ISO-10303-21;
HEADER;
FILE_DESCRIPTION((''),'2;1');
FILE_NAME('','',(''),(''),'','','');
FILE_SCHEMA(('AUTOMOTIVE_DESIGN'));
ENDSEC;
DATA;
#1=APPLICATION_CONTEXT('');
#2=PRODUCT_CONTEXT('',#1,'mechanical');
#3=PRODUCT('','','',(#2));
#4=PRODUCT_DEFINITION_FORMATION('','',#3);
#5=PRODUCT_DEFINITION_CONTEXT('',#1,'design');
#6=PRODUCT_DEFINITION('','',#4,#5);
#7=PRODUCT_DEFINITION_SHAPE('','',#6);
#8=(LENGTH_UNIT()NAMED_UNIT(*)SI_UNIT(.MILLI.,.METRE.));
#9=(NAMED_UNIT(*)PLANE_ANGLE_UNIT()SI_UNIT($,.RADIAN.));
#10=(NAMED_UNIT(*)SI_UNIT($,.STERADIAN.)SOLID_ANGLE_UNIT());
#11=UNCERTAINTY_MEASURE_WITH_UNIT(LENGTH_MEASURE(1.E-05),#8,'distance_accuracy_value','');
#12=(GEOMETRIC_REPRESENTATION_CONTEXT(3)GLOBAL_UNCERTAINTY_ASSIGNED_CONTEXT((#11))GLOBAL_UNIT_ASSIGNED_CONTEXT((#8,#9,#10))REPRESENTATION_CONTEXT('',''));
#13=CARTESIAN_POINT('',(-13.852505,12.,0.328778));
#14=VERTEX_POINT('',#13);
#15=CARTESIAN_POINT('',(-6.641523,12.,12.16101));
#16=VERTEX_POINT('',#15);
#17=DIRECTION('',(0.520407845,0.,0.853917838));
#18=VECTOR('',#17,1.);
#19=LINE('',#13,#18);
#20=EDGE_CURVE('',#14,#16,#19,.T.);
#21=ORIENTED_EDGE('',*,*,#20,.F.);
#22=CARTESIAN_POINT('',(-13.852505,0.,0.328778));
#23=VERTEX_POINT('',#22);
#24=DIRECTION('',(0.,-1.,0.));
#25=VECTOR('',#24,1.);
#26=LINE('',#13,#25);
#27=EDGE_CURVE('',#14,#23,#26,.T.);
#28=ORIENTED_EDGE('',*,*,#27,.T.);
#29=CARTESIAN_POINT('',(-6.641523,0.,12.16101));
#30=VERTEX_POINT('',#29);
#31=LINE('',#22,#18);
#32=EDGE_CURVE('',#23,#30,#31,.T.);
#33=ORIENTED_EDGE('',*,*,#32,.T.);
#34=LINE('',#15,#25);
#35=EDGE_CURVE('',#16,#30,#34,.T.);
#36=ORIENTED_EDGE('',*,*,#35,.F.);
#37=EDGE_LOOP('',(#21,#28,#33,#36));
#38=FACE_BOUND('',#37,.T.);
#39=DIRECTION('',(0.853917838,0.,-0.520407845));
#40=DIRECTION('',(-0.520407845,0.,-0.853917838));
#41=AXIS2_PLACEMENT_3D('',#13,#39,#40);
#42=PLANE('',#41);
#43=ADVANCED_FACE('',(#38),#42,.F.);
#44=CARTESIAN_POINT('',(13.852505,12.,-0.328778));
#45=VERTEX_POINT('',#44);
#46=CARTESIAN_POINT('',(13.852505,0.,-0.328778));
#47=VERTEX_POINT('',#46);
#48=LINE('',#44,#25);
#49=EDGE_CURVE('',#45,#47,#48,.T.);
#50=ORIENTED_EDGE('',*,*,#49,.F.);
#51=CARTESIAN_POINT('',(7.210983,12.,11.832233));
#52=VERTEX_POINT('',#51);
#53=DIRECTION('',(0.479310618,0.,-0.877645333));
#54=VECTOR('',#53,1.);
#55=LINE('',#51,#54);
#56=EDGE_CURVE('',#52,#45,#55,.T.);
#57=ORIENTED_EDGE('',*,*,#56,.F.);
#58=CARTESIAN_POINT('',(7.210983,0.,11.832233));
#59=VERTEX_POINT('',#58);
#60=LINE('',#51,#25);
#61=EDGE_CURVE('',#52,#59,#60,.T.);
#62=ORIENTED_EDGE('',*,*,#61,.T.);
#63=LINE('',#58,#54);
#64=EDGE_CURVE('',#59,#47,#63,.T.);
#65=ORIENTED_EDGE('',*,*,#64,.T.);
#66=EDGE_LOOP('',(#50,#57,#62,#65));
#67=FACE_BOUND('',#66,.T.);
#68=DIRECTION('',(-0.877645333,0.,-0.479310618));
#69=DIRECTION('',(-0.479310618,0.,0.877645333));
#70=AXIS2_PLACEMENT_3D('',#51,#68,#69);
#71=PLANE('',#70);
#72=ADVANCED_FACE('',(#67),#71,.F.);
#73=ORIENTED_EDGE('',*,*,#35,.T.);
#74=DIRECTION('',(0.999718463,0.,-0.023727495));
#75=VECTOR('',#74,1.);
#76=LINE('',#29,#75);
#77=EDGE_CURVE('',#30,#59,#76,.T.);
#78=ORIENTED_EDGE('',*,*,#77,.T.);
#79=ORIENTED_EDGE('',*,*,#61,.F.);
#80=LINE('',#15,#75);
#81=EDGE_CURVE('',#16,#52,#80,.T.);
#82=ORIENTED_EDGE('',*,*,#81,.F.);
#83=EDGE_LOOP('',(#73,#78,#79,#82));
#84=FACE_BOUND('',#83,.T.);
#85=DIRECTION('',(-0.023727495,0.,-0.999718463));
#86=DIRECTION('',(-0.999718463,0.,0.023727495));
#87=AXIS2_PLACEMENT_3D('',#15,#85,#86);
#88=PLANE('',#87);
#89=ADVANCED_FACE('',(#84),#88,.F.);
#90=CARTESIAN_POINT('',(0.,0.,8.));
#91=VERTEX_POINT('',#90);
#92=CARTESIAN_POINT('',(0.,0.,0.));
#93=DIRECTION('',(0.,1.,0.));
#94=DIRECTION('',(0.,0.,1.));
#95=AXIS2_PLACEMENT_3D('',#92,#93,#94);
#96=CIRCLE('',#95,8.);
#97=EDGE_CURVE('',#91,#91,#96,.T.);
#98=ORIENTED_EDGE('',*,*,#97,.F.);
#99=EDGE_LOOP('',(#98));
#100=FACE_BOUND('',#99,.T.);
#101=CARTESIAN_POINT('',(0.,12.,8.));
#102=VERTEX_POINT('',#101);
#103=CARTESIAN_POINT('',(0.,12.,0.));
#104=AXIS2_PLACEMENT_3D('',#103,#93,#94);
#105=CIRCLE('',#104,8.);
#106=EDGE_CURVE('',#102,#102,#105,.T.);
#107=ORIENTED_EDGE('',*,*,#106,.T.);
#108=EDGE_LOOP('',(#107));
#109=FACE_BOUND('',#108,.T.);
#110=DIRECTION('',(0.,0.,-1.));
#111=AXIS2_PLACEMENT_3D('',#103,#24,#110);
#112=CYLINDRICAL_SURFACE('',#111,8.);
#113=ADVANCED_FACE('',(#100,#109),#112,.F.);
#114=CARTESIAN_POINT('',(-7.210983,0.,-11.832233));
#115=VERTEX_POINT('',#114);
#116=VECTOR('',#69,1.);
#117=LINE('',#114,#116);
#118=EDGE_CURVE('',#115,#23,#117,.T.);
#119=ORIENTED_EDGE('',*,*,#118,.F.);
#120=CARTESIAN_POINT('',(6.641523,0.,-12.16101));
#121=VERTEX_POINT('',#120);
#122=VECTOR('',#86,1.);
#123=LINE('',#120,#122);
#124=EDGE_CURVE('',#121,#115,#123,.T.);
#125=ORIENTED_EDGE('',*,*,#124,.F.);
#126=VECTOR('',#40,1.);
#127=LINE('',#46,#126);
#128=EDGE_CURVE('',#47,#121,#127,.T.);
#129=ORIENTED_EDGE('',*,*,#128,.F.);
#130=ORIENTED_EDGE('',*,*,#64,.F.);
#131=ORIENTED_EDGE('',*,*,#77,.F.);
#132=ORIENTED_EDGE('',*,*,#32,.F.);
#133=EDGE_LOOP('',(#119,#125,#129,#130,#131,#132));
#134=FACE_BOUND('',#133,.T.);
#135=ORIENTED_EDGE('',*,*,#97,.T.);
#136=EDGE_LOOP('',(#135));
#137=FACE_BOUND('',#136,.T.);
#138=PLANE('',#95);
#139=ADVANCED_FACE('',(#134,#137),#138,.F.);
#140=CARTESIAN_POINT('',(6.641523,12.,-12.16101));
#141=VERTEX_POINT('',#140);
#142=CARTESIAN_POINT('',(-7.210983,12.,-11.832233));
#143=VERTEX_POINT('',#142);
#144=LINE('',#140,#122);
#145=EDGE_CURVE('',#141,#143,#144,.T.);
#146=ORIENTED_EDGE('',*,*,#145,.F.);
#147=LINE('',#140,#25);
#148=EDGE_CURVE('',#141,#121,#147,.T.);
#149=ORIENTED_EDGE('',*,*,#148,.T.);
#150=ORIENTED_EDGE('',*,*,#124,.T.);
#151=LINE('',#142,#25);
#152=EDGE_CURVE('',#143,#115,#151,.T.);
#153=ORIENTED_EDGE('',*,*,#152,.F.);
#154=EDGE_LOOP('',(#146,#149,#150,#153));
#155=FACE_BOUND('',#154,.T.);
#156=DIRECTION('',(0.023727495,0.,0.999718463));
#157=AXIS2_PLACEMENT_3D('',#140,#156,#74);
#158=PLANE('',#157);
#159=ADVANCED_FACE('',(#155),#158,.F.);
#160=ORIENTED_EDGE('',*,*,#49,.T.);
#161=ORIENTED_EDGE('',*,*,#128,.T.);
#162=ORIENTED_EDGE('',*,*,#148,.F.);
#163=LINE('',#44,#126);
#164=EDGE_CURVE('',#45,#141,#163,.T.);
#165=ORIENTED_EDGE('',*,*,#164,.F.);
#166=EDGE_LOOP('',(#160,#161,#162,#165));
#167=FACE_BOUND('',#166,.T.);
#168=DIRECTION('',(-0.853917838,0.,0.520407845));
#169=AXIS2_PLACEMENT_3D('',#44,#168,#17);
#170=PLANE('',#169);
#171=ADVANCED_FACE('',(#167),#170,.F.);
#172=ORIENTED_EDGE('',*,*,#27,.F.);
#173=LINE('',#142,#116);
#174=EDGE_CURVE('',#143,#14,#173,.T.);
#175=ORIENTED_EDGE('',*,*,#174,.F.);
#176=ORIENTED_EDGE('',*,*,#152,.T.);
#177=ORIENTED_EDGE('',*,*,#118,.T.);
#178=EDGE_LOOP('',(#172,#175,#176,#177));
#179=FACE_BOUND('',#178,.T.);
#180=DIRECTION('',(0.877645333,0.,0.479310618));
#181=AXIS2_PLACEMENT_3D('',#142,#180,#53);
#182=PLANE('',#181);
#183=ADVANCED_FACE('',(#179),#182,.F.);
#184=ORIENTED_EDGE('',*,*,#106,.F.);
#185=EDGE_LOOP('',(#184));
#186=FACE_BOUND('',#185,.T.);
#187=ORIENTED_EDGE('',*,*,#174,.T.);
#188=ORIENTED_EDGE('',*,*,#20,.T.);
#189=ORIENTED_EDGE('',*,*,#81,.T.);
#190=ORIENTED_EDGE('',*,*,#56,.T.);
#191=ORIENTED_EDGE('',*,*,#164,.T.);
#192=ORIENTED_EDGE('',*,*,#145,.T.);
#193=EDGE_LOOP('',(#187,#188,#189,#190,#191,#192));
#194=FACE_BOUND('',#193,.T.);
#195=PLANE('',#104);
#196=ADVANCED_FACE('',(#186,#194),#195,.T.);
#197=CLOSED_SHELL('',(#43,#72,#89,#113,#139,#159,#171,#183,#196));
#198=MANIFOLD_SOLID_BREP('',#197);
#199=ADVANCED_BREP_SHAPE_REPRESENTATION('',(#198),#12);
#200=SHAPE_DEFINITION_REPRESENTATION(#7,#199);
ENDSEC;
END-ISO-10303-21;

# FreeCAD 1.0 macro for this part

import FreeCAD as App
import Part
import Sketcher

doc = App.newDocument("Part")
params = doc.addObject("Spreadsheet::Sheet", "Params")
for row, (alias, value) in enumerate([
    ("sketch1_diameter", "16 mm"),
    ("pad1_length", "12 mm"),
], start=1):
    params.set(f"A{row}", alias)
    params.set(f"B{row}", "=" + value)
    params.setAlias(f"B{row}", alias)

body = doc.addObject("PartDesign::Body", "Body")

# Sketch on XZ plane
sketch1 = body.newObject("Sketcher::SketchObject", "Sketch")
sketch1.AttachmentSupport = (doc.getObject("XZ_Plane"), [""])
sketch1.MapMode = "FlatFace"
sketch1.addGeometry([
    Part.LineSegment(App.Vector(-13.852505, 0.328778, 0), App.Vector(-6.641523, 12.16101, 0)),  # 0
    Part.LineSegment(App.Vector(-6.641523, 12.16101, 0), App.Vector(7.210983, 11.832233, 0)),  # 1
    Part.LineSegment(App.Vector(7.210983, 11.832233, 0), App.Vector(13.852505, -0.328778, 0)),  # 2
    Part.LineSegment(App.Vector(13.852505, -0.328778, 0), App.Vector(6.641523, -12.16101, 0)),  # 3
    Part.LineSegment(App.Vector(6.641523, -12.16101, 0), App.Vector(-7.210983, -11.832233, 0)),  # 4
    Part.LineSegment(App.Vector(-7.210983, -11.832233, 0), App.Vector(-13.852505, 0.328778, 0)),  # 5
    Part.Circle(App.Vector(0, 0, 0), App.Vector(0, 0, 1), 8),  # 6
], False)
sketch1.addConstraint([
    Sketcher.Constraint("Coincident", 0, 2, 1, 1),
    Sketcher.Constraint("Coincident", 1, 2, 2, 1),
    Sketcher.Constraint("Coincident", 2, 2, 3, 1),
    Sketcher.Constraint("Coincident", 3, 2, 4, 1),
    Sketcher.Constraint("Coincident", 4, 2, 5, 1),
    Sketcher.Constraint("Coincident", 5, 2, 0, 1),
    Sketcher.Constraint("Coincident", 6, 3, -1, 1),
    Sketcher.Constraint("Symmetric", 0, 2, 3, 2, -1, 1),
    Sketcher.Constraint("Symmetric", 1, 2, 4, 2, -1, 1),
    Sketcher.Constraint("Symmetric", 2, 2, 5, 2, -1, 1),
    Sketcher.Constraint("Equal", 0, 1),
    Sketcher.Constraint("Equal", 1, 2),
    Sketcher.Constraint("Diameter", 6, 16.0),
    Sketcher.Constraint("DistanceY", -1, 1, 0, 2, 12.16101),
    Sketcher.Constraint("DistanceY", 2, 2, 1, 2, 12.16101),
    Sketcher.Constraint("DistanceX", 0, 2, 2, 2, 20.494028),
    Sketcher.Constraint("DistanceY", 2, 2, 0, 2, 12.489788),
])
sketch1.setExpression("Constraints[12]", "Params.sketch1_diameter")
pad1 = body.newObject("PartDesign::Pad", "Pad")
pad1.Profile = sketch1
pad1.setExpression("Length", "Params.pad1_length")
pad1.Reversed = True

doc.recompute()
